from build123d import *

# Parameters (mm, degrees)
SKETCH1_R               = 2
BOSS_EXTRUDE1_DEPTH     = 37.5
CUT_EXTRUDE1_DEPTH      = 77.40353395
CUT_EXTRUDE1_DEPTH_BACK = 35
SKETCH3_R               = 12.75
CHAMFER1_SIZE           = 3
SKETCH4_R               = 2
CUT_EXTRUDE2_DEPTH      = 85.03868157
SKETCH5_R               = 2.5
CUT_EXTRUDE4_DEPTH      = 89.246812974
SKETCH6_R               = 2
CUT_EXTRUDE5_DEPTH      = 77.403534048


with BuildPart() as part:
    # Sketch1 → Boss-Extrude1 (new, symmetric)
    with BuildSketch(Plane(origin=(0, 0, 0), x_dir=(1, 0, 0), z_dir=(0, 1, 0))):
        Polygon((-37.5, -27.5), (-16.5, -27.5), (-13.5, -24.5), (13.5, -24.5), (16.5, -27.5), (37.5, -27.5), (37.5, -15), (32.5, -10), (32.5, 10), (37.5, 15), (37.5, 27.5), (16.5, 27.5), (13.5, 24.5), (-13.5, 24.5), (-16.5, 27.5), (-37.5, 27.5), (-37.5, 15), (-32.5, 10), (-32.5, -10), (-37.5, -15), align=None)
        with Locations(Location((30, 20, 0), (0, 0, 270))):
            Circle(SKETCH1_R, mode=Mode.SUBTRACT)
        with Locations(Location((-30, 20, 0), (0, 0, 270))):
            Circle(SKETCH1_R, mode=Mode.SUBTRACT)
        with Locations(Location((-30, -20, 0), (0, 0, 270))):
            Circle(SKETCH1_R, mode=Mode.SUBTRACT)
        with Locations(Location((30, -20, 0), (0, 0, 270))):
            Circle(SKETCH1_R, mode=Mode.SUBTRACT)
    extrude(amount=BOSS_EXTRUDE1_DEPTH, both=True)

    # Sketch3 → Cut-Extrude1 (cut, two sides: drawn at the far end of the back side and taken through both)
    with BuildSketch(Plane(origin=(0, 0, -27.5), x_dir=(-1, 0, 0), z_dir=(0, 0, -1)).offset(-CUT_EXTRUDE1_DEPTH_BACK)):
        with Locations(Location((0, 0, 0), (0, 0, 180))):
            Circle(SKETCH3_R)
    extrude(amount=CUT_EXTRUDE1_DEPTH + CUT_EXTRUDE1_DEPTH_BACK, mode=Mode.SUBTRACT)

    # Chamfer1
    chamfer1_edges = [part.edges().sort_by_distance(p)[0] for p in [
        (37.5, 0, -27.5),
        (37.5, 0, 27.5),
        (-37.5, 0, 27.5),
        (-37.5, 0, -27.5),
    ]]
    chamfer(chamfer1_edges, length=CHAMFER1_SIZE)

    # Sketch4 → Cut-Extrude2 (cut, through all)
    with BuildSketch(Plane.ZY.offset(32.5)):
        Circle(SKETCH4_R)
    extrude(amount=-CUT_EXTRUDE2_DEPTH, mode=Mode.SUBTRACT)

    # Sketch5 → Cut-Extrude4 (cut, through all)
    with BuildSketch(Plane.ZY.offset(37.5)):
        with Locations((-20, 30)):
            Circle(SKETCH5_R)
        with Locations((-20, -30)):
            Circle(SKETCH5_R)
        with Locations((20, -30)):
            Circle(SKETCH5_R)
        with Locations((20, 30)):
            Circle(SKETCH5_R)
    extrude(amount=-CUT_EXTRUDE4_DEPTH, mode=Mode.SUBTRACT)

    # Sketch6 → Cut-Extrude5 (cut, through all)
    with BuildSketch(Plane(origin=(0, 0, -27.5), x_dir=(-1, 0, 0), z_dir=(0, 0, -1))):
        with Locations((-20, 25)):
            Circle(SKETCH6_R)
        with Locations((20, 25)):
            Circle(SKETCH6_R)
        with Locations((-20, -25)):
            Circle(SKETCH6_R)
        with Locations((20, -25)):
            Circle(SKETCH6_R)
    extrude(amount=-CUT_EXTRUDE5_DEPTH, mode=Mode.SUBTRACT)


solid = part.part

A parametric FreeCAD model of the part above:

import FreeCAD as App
import Part
import Sketcher

V = App.Vector


def edges_at(feature, points):
    """Names of the edges that pass closest to the given points."""
    edges = feature.Shape.Edges
    near = lambda p: min(range(len(edges)), key=lambda i: edges[i].distToShape(Part.Vertex(*p))[0])
    return sorted({f"Edge{near(p) + 1}" for p in points})

doc = App.newDocument("Part")
body = doc.addObject("PartDesign::Body", "Body")

# Sketch on XZ plane
sketch1 = body.newObject("Sketcher::SketchObject", "Sketch")
sketch1.AttachmentSupport = (doc.getObject("XZ_Plane"), [""])
sketch1.MapMode = "FlatFace"
sketch1.addGeometry([
    Part.LineSegment(V(-37.5, 27.5, 0), V(-16.5, 27.5, 0)),  # 0
    Part.LineSegment(V(-16.5, 27.5, 0), V(-13.5, 24.5, 0)),  # 1
    Part.LineSegment(V(-13.5, 24.5, 0), V(13.5, 24.5, 0)),  # 2
    Part.LineSegment(V(13.5, 24.5, 0), V(16.5, 27.5, 0)),  # 3
    Part.LineSegment(V(16.5, 27.5, 0), V(37.5, 27.5, 0)),  # 4
    Part.LineSegment(V(37.5, 27.5, 0), V(37.5, 15, 0)),  # 5
    Part.LineSegment(V(37.5, 15, 0), V(32.5, 10, 0)),  # 6
    Part.LineSegment(V(32.5, 10, 0), V(32.5, -10, 0)),  # 7
    Part.LineSegment(V(32.5, -10, 0), V(37.5, -15, 0)),  # 8
    Part.LineSegment(V(37.5, -15, 0), V(37.5, -27.5, 0)),  # 9
    Part.LineSegment(V(37.5, -27.5, 0), V(16.5, -27.5, 0)),  # 10
    Part.LineSegment(V(16.5, -27.5, 0), V(13.5, -24.5, 0)),  # 11
    Part.LineSegment(V(13.5, -24.5, 0), V(-13.5, -24.5, 0)),  # 12
    Part.LineSegment(V(-13.5, -24.5, 0), V(-16.5, -27.5, 0)),  # 13
    Part.LineSegment(V(-16.5, -27.5, 0), V(-37.5, -27.5, 0)),  # 14
    Part.LineSegment(V(-37.5, -27.5, 0), V(-37.5, -15, 0)),  # 15
    Part.LineSegment(V(-37.5, -15, 0), V(-32.5, -10, 0)),  # 16
    Part.LineSegment(V(-32.5, -10, 0), V(-32.5, 10, 0)),  # 17
    Part.LineSegment(V(-32.5, 10, 0), V(-37.5, 15, 0)),  # 18
    Part.LineSegment(V(-37.5, 15, 0), V(-37.5, 27.5, 0)),  # 19
    Part.Circle(V(-30, 20, 0), V(0, 0, 1), 2),  # 20
    Part.Circle(V(30, 20, 0), V(0, 0, 1), 2),  # 21
    Part.Circle(V(-30, -20, 0), V(0, 0, 1), 2),  # 22
    Part.Circle(V(30, -20, 0), V(0, 0, 1), 2),  # 23
], False)
sketch1.addConstraint([
    Sketcher.Constraint("Coincident", 0, 2, 1, 1),
    Sketcher.Constraint("Coincident", 1, 2, 2, 1),
    Sketcher.Constraint("Coincident", 2, 2, 3, 1),
    Sketcher.Constraint("Coincident", 3, 2, 4, 1),
    Sketcher.Constraint("Coincident", 4, 2, 5, 1),
    Sketcher.Constraint("Coincident", 5, 2, 6, 1),
    Sketcher.Constraint("Coincident", 6, 2, 7, 1),
    Sketcher.Constraint("Coincident", 7, 2, 8, 1),
    Sketcher.Constraint("Coincident", 8, 2, 9, 1),
    Sketcher.Constraint("Coincident", 9, 2, 10, 1),
    Sketcher.Constraint("Coincident", 10, 2, 11, 1),
    Sketcher.Constraint("Coincident", 11, 2, 12, 1),
    Sketcher.Constraint("Coincident", 12, 2, 13, 1),
    Sketcher.Constraint("Coincident", 13, 2, 14, 1),
    Sketcher.Constraint("Coincident", 14, 2, 15, 1),
    Sketcher.Constraint("Coincident", 15, 2, 16, 1),
    Sketcher.Constraint("Coincident", 16, 2, 17, 1),
    Sketcher.Constraint("Coincident", 17, 2, 18, 1),
    Sketcher.Constraint("Coincident", 18, 2, 19, 1),
    Sketcher.Constraint("Coincident", 19, 2, 0, 1),
    Sketcher.Constraint("Horizontal", 0),
    Sketcher.Constraint("Horizontal", 2),
    Sketcher.Constraint("Horizontal", 4),
    Sketcher.Constraint("Vertical", 5),
    Sketcher.Constraint("Vertical", 7),
    Sketcher.Constraint("Vertical", 9),
    Sketcher.Constraint("Horizontal", 10),
    Sketcher.Constraint("Horizontal", 12),
    Sketcher.Constraint("Horizontal", 14),
    Sketcher.Constraint("Vertical", 15),
    Sketcher.Constraint("Vertical", 17),
    Sketcher.Constraint("Vertical", 19),
    Sketcher.Constraint("Equal", 20, 21),
    Sketcher.Constraint("Equal", 21, 22),
    Sketcher.Constraint("Equal", 22, 23),
    Sketcher.Constraint("Symmetric", 21, 3, 22, 3, -1, 1),
    Sketcher.Constraint("Symmetric", 20, 3, 23, 3, -1, 1),
    Sketcher.Constraint("Symmetric", 0, 2, 10, 2, -1, 1),
    Sketcher.Constraint("Symmetric", 1, 2, 11, 2, -1, 1),
    Sketcher.Constraint("Symmetric", 3, 2, 13, 2, -1, 1),
    Sketcher.Constraint("Symmetric", 5, 2, 15, 2, -1, 1),
    Sketcher.Constraint("Symmetric", 6, 2, 16, 2, -1, 1),
    Sketcher.Constraint("Symmetric", 8, 2, 18, 2, -1, 1),
    Sketcher.Constraint("Symmetric", 20, 3, 21, 3, -2),
    Sketcher.Constraint("Symmetric", 0, 2, 3, 2, -2),
    Sketcher.Constraint("Symmetric", 8, 2, 15, 2, -2),
    Sketcher.Constraint("Perpendicular", 1, 3),
    Sketcher.Constraint("Parallel", 3, 6),
    Sketcher.Constraint("Perpendicular", 6, 8),
    Sketcher.Constraint("Perpendicular", 11, 13),
    Sketcher.Constraint("Perpendicular", 16, 18),
    Sketcher.Constraint("Horizontal", 7, 2, 16, 2),
    Sketcher.Constraint("Diameter", 20, 4.0),
    Sketcher.Constraint("DistanceX", 0, 1, 0, 2, 21.0),
    Sketcher.Constraint("DistanceX", 2, 1, 2, 2, 27.0),
    Sketcher.Constraint("DistanceY", 7, 2, 7, 1, 20.0),
    Sketcher.Constraint("DistanceY", 5, 2, 5, 1, 12.5),
    Sketcher.Constraint("DistanceX", 20, 3, -1, 1, 30.0),
    Sketcher.Constraint("DistanceY", -1, 1, 20, 3, 20.0),
    Sketcher.Constraint("DistanceY", -1, 1, 5, 2, 15.0),
    Sketcher.Constraint("DistanceX", 0, 2, 1, 2, 3.0),
])
pad1 = body.newObject("PartDesign::Pad", "Pad")
pad1.Profile = sketch1
pad1.Length = 75
pad1.Midplane = True

# Sketch on XY plane
sketch2 = body.newObject("Sketcher::SketchObject", "Sketch001")
sketch2.AttachmentSupport = (doc.getObject("XY_Plane"), [""])
sketch2.MapMode = "FlatFace"
sketch2.AttachmentOffset = App.Placement(V(0, 0, -27.5), App.Rotation())
sketch2.addGeometry(Part.Circle(V(0, 0, 0), V(0, 0, 1), 13), False)
sketch2.addConstraint([
    Sketcher.Constraint("Coincident", 0, 3, -1, 1),
    Sketcher.Constraint("Diameter", 0, 25.5),
])
pocket1 = body.newObject("PartDesign::Pocket", "Pocket")
pocket1.Profile = sketch2
pocket1.Type = "TwoLengths"
pocket1.Length = 77.403534
pocket1.Length2 = 35
doc.recompute()

chamfer = body.newObject("PartDesign::Chamfer", "Chamfer")
chamfer.Base = (pocket1, edges_at(pocket1, [
    (37.5, 0, -27.5),
    (37.5, 0, 27.5),
    (-37.5, 0, 27.5),
    (-37.5, 0, -27.5),
]))
chamfer.Size = 3

# Sketch on YZ plane
sketch3 = body.newObject("Sketcher::SketchObject", "Sketch002")
sketch3.AttachmentSupport = (doc.getObject("YZ_Plane"), [""])
sketch3.MapMode = "FlatFace"
sketch3.AttachmentOffset = App.Placement(V(0, 0, -32.5), App.Rotation())
sketch3.addGeometry(Part.Circle(V(0, 0, 0), V(0, 0, 1), 2), False)
sketch3.addConstraint([
    Sketcher.Constraint("Coincident", 0, 3, -1, 1),
    Sketcher.Constraint("Diameter", 0, 4.0),
])
pocket2 = body.newObject("PartDesign::Pocket", "Pocket001")
pocket2.Profile = sketch3
pocket2.Type = "ThroughAll"
pocket2.Reversed = True

# Sketch on YZ plane
sketch4 = body.newObject("Sketcher::SketchObject", "Sketch003")
sketch4.AttachmentSupport = (doc.getObject("YZ_Plane"), [""])
sketch4.MapMode = "FlatFace"
sketch4.AttachmentOffset = App.Placement(V(0, 0, -37.5), App.Rotation())
sketch4.addGeometry([
    Part.Circle(V(30, -20, 0), V(0, 0, 1), 2.5),
    Part.Circle(V(-30, -20, 0), V(0, 0, 1), 2.5),
    Part.Circle(V(-30, 20, 0), V(0, 0, 1), 2.5),
    Part.Circle(V(30, 20, 0), V(0, 0, 1), 2.5),
], False)
sketch4.addConstraint([
    Sketcher.Constraint("Equal", 0, 1),
    Sketcher.Constraint("Equal", 1, 2),
    Sketcher.Constraint("Equal", 2, 3),
    Sketcher.Constraint("Symmetric", 0, 3, 2, 3, -1, 1),
    Sketcher.Constraint("Symmetric", 1, 3, 3, 3, -1, 1),
    Sketcher.Constraint("Symmetric", 0, 3, 1, 3, -2),
    Sketcher.Constraint("Diameter", 0, 5.0),
    Sketcher.Constraint("DistanceX", -1, 1, 0, 3, 30.0),
    Sketcher.Constraint("DistanceY", 0, 3, -1, 1, 20.0),
])
pocket3 = body.newObject("PartDesign::Pocket", "Pocket002")
pocket3.Profile = sketch4
pocket3.Type = "ThroughAll"
pocket3.Reversed = True

# Sketch on XY plane
sketch5 = body.newObject("Sketcher::SketchObject", "Sketch004")
sketch5.AttachmentSupport = (doc.getObject("XY_Plane"), [""])
sketch5.MapMode = "FlatFace"
sketch5.AttachmentOffset = App.Placement(V(0, 0, -27.5), App.Rotation())
sketch5.addGeometry([
    Part.Circle(V(20, 25, 0), V(0, 0, 1), 2),
    Part.Circle(V(-20, 25, 0), V(0, 0, 1), 2),
    Part.Circle(V(20, -25, 0), V(0, 0, 1), 2),
    Part.Circle(V(-20, -25, 0), V(0, 0, 1), 2),
], False)
sketch5.addConstraint([
    Sketcher.Constraint("Equal", 0, 1),
    Sketcher.Constraint("Equal", 1, 2),
    Sketcher.Constraint("Equal", 2, 3),
    Sketcher.Constraint("Symmetric", 1, 3, 2, 3, -1, 1),
    Sketcher.Constraint("Symmetric", 0, 3, 3, 3, -1, 1),
    Sketcher.Constraint("Symmetric", 0, 3, 1, 3, -2),
    Sketcher.Constraint("Diameter", 0, 4.0),
    Sketcher.Constraint("DistanceX", -1, 1, 0, 3, 20.0),
    Sketcher.Constraint("DistanceY", -1, 1, 0, 3, 25.0),
])
pocket4 = body.newObject("PartDesign::Pocket", "Pocket003")
pocket4.Profile = sketch5
pocket4.Type = "ThroughAll"
pocket4.Reversed = True

doc.recompute()
